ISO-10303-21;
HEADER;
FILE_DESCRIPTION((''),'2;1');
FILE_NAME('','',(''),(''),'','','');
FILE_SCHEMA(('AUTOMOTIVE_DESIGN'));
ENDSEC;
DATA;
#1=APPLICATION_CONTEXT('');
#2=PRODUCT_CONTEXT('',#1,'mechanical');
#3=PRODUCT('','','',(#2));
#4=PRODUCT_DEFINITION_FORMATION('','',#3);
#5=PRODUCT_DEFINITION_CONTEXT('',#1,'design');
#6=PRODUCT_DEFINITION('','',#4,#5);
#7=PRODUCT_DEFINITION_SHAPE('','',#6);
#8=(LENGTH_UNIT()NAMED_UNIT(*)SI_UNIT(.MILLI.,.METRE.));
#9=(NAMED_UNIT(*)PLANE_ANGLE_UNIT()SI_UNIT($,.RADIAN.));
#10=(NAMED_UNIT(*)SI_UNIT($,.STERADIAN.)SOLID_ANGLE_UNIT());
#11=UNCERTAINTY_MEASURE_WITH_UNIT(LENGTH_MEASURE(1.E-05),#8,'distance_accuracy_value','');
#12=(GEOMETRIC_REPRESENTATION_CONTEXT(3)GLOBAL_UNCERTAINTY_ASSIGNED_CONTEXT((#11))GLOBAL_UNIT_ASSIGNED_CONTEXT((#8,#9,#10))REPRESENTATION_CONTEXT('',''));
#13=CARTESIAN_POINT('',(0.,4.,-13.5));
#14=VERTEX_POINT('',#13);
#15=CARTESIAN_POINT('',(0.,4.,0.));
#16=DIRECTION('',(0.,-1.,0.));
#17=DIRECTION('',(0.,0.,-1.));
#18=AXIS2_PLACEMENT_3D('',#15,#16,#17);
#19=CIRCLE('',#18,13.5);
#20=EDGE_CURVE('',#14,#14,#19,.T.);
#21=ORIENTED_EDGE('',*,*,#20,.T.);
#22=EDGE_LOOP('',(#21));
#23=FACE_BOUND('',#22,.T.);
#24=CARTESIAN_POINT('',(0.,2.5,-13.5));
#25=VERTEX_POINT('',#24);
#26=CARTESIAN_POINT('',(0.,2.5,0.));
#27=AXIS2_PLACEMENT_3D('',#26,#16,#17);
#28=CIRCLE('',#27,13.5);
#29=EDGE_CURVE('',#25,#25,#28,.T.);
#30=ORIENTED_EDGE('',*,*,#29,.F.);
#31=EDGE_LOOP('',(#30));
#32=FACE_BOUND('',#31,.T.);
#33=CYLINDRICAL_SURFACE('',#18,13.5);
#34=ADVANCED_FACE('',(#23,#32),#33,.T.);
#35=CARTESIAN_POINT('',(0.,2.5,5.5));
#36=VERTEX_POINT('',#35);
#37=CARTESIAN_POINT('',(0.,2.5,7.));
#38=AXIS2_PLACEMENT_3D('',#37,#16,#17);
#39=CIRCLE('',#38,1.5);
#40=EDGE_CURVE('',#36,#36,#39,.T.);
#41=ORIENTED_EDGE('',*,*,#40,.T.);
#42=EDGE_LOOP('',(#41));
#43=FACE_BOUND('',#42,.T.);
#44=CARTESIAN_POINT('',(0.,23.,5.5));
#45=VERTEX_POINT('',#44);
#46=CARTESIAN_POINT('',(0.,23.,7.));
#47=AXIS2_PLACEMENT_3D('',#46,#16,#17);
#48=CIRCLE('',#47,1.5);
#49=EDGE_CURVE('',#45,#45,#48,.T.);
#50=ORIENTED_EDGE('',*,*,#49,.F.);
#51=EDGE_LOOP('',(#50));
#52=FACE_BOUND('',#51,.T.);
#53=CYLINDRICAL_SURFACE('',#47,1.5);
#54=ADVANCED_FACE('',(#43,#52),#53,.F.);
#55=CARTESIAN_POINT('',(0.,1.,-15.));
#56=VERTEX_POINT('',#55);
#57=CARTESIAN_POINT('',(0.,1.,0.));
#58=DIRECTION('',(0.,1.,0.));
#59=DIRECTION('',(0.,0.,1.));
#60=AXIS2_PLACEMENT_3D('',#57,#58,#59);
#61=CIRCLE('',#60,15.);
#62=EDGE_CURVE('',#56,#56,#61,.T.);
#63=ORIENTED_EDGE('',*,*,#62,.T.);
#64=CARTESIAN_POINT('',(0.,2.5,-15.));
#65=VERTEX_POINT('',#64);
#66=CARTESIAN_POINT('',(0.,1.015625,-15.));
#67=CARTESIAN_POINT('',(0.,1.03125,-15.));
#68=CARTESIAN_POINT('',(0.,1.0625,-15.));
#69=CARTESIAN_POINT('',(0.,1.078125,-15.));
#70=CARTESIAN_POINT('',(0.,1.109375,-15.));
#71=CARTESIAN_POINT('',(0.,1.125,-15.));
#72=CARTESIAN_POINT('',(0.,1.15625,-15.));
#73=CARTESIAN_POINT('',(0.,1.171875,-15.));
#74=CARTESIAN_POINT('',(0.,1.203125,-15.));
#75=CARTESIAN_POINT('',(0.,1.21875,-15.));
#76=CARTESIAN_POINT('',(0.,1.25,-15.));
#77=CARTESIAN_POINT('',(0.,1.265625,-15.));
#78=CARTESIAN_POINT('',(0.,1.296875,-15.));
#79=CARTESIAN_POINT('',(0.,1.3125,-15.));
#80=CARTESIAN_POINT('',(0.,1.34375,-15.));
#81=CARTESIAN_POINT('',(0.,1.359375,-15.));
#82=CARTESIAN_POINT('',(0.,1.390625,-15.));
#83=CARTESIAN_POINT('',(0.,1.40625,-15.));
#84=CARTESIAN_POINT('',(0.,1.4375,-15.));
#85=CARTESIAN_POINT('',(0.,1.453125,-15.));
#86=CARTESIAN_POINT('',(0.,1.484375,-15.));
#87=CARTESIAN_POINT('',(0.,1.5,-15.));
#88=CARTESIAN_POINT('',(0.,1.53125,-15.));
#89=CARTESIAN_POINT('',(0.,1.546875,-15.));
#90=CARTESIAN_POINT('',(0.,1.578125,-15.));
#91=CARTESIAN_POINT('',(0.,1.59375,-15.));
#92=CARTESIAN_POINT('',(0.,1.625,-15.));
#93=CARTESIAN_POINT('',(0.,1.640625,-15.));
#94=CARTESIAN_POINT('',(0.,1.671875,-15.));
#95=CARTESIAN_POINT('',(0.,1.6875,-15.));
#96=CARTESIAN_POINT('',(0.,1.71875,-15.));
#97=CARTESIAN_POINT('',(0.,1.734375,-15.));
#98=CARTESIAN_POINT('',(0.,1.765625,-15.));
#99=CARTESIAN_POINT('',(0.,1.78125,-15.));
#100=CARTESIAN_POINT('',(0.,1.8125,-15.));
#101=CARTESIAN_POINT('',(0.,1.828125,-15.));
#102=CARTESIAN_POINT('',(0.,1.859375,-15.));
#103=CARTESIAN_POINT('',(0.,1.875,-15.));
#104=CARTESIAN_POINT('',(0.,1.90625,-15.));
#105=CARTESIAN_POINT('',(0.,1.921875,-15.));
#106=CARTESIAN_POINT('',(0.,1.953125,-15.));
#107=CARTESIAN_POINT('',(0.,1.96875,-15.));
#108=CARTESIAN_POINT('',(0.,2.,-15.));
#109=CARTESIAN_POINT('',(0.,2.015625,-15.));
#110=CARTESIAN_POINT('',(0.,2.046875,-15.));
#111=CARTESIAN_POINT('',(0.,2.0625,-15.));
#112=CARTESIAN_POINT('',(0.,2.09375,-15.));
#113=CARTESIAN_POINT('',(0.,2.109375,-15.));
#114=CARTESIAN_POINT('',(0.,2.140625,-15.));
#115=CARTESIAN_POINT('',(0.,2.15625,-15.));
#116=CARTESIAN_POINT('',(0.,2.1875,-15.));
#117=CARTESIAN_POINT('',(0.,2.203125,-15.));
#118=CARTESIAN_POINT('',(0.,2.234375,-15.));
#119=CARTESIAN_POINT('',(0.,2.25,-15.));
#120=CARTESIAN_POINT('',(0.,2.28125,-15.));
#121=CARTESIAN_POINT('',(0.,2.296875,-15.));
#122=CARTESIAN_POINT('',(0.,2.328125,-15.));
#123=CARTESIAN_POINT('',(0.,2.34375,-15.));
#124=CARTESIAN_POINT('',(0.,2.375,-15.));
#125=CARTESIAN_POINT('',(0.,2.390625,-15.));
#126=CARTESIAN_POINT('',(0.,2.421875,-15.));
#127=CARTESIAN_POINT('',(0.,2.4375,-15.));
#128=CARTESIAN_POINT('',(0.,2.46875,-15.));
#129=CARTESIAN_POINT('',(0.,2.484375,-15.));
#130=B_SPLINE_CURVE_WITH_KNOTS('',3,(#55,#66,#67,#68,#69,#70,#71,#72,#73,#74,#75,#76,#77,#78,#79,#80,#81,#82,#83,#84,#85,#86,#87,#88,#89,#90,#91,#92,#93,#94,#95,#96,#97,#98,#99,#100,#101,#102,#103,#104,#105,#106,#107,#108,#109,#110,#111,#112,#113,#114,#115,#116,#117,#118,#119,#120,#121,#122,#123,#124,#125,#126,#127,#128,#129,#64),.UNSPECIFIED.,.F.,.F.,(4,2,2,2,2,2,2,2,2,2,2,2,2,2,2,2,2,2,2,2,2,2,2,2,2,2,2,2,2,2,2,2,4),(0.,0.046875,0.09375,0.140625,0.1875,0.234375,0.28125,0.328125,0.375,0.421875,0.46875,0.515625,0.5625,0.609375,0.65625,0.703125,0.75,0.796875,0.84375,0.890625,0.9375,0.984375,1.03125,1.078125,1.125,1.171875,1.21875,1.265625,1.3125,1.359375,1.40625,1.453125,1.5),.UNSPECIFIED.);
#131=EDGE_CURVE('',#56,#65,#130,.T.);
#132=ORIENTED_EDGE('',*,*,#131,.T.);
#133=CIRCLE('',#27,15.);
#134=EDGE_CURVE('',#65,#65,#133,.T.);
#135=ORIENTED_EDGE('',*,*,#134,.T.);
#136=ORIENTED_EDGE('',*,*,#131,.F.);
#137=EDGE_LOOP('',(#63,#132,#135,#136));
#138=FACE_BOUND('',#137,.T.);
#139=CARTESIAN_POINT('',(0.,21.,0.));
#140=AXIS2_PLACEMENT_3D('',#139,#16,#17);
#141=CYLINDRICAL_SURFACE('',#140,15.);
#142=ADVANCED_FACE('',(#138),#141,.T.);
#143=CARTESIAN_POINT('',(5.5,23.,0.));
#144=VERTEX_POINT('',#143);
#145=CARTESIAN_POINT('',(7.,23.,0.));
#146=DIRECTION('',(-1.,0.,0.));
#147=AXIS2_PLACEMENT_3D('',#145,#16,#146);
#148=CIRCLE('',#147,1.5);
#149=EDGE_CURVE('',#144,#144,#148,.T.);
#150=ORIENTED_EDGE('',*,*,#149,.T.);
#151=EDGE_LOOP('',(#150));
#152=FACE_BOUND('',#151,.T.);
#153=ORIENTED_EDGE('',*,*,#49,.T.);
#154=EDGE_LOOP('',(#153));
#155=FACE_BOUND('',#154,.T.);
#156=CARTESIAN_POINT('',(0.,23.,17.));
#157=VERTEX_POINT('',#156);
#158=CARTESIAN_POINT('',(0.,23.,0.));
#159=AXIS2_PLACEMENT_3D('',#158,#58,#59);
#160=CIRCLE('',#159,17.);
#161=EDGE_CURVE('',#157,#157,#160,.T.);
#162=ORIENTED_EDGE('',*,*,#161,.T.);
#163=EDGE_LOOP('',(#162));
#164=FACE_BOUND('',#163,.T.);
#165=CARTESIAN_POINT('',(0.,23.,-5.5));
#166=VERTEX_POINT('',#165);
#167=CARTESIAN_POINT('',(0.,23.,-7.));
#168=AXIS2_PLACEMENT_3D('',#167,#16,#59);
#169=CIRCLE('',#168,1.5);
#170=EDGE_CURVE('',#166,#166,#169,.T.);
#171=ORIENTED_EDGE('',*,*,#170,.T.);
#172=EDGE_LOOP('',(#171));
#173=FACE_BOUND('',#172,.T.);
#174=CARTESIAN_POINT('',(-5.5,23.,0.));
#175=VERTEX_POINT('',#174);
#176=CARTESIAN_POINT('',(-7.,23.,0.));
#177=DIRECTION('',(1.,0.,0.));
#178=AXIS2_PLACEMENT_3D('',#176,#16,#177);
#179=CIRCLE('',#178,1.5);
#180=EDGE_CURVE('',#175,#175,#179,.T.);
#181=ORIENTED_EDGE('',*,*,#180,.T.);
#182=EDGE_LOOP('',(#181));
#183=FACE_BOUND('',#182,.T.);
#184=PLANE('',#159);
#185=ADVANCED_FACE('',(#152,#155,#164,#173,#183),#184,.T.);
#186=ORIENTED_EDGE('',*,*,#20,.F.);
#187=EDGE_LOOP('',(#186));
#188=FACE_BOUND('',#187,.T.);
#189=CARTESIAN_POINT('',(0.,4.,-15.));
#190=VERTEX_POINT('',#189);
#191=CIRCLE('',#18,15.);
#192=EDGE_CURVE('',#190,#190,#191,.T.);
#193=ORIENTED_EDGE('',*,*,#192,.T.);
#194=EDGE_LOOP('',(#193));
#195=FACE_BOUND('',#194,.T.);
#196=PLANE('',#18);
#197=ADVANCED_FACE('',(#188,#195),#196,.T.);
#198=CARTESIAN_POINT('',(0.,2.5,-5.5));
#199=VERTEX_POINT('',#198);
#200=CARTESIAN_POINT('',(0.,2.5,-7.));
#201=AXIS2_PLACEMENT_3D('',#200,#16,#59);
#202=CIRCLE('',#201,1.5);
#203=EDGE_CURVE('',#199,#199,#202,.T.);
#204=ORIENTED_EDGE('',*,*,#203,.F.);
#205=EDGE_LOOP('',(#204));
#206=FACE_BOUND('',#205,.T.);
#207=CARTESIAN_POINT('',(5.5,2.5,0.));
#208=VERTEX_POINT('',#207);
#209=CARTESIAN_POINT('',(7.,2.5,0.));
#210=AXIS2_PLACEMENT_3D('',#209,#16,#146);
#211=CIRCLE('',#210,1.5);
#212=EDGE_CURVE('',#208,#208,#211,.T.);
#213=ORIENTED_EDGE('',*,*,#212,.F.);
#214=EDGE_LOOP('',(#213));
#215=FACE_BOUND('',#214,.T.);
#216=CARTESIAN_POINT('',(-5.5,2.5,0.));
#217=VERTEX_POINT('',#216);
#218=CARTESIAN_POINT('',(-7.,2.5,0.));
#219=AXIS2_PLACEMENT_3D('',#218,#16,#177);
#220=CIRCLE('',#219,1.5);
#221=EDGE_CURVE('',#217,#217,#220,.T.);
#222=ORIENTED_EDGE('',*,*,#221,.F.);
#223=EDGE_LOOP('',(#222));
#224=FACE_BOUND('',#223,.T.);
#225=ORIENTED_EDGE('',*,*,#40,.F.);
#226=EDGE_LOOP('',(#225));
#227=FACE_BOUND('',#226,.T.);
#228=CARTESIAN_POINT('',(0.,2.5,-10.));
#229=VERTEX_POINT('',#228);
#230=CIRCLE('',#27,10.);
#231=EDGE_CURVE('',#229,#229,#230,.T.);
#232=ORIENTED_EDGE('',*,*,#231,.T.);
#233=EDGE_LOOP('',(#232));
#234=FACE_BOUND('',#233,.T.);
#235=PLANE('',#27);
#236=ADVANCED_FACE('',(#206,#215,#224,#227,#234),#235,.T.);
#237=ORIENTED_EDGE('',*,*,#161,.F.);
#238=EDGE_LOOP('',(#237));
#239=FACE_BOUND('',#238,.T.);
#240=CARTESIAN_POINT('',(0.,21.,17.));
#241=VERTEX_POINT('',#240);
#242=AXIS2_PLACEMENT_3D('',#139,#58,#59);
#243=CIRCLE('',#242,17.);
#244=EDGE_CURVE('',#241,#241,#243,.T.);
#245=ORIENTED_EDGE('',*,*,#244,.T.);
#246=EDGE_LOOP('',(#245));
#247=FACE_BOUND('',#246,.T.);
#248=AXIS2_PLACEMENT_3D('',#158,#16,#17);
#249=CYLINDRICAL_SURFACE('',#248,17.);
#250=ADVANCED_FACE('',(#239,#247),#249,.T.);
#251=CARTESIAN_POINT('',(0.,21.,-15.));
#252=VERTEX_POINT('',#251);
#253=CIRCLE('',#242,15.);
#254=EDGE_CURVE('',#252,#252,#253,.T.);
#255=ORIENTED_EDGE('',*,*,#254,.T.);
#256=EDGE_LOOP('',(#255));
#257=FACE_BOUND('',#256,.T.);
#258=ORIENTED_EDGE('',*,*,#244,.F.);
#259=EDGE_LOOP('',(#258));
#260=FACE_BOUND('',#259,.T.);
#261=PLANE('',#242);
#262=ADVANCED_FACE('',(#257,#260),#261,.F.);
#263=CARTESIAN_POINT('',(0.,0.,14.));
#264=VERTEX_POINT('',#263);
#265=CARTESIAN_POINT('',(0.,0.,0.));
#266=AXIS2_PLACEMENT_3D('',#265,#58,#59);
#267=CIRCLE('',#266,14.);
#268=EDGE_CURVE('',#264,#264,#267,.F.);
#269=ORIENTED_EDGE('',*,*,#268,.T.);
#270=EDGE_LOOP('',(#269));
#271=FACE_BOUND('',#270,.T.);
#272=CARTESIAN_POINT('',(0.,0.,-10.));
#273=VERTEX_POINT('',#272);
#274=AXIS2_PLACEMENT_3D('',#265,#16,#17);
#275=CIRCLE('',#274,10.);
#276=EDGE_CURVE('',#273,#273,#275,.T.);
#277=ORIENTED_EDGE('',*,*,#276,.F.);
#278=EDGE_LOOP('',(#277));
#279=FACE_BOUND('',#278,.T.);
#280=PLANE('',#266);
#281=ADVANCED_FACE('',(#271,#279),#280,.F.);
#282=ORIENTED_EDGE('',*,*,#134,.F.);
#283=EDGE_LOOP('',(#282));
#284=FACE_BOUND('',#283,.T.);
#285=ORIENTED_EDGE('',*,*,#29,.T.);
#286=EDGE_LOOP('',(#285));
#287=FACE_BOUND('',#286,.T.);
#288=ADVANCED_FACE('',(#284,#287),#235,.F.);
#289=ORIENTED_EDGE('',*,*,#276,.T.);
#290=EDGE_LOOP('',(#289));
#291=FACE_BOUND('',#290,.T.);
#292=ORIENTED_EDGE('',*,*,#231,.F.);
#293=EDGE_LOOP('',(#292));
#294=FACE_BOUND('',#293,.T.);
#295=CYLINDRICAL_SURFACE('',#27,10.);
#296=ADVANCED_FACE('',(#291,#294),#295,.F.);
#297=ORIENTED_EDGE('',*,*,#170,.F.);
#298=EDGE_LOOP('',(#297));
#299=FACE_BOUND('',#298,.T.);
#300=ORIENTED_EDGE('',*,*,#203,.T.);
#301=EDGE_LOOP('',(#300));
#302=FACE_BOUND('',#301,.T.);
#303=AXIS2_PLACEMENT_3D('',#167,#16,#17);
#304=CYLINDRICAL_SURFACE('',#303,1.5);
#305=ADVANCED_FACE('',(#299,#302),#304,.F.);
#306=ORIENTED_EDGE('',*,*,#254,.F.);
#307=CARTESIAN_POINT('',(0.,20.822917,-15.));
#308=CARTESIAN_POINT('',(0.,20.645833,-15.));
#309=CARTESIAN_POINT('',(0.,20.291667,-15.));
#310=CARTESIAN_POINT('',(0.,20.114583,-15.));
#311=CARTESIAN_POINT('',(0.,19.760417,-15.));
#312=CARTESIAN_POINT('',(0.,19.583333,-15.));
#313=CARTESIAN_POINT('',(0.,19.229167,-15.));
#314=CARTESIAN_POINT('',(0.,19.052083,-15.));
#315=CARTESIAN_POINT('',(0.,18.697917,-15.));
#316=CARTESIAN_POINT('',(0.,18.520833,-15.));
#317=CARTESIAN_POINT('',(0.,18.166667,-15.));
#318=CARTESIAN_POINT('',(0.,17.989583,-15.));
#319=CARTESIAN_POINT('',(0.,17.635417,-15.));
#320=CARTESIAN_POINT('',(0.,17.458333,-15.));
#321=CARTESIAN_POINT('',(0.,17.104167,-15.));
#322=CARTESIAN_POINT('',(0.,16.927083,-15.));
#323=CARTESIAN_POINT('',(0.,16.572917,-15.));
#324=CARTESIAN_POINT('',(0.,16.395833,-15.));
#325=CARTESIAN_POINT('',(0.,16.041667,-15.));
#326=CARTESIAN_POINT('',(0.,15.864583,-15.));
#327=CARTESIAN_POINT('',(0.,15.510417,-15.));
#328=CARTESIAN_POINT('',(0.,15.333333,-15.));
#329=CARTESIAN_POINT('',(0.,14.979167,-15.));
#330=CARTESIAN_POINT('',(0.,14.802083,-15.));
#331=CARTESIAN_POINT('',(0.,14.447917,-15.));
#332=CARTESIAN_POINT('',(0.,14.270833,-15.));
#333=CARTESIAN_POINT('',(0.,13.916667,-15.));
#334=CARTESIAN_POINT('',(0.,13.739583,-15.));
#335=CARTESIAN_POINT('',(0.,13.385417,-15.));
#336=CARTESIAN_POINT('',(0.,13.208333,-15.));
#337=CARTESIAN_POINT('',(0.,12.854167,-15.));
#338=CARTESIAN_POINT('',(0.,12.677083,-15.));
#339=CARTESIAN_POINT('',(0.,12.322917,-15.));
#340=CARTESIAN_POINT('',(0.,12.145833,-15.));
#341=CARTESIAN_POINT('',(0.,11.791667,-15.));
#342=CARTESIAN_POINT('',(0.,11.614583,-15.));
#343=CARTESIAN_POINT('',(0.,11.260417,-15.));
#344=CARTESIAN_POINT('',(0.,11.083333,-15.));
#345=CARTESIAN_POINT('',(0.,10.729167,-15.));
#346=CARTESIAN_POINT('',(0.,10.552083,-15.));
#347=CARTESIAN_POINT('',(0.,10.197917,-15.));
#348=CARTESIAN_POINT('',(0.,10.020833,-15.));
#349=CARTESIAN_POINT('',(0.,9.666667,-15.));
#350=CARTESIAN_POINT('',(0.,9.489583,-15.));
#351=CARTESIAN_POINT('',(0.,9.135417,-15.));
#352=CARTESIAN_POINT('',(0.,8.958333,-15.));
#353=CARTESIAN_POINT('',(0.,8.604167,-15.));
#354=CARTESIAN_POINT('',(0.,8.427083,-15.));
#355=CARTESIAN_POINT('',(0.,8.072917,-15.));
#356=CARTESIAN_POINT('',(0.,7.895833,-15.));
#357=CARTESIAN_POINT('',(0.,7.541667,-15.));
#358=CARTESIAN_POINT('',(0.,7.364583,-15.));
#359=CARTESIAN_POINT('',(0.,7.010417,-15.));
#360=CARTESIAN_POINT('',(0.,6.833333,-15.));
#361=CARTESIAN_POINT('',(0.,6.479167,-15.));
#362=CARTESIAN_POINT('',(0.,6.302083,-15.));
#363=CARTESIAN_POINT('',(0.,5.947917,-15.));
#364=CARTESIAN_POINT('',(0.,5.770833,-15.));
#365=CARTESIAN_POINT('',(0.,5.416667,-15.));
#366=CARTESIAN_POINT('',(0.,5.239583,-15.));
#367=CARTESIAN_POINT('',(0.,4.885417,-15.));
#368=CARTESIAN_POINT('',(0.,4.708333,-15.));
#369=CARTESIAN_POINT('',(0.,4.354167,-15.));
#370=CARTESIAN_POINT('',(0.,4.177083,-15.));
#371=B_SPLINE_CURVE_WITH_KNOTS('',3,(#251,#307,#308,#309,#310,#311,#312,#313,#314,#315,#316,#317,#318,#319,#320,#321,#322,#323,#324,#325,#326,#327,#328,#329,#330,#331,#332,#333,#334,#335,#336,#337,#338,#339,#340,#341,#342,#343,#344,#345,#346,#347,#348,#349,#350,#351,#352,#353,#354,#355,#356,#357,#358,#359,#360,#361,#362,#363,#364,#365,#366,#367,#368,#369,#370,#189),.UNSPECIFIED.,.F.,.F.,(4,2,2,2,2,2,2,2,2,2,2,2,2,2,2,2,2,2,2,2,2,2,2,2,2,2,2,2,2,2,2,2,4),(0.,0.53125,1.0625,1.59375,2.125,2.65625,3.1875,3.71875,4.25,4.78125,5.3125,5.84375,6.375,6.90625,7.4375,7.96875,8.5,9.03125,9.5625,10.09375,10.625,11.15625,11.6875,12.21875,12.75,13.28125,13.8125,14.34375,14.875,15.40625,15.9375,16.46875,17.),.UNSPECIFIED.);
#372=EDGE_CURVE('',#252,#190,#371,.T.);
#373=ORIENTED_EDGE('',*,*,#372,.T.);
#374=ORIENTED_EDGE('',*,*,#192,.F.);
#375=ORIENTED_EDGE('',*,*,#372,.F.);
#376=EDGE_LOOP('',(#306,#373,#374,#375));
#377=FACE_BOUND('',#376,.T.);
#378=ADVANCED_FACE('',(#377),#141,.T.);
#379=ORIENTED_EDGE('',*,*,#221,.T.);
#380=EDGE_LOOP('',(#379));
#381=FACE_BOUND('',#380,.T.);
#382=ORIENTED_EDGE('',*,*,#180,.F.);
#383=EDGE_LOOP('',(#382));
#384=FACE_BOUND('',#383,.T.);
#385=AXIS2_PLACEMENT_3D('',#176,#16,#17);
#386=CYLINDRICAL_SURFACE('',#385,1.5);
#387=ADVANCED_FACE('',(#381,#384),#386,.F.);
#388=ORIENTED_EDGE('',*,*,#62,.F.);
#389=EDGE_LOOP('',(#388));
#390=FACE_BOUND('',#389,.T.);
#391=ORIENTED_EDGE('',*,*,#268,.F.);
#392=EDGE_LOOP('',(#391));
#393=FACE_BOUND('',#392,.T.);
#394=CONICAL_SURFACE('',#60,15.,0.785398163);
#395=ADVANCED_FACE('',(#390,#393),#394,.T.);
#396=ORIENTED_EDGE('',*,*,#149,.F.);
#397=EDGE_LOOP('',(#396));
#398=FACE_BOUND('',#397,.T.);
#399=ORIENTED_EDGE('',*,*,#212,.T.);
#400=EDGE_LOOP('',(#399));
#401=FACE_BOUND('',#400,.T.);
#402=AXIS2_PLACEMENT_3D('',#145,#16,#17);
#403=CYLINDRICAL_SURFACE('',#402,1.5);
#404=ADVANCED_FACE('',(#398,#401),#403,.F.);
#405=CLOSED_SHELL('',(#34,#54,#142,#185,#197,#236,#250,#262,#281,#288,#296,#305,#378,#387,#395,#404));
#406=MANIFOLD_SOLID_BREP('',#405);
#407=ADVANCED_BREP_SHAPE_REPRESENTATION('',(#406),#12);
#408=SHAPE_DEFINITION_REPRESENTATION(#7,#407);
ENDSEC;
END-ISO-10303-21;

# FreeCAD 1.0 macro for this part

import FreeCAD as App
import Part
import Sketcher
from FreeCAD import Vector
Q = App.Units.Quantity


def edges_at(feature, points):
    """Names of the edges that pass closest to the given points."""
    edges = feature.Shape.Edges
    near = lambda p: min(range(len(edges)), key=lambda i: edges[i].distToShape(Part.Vertex(*p))[0])
    return sorted({f"Edge{near(p) + 1}" for p in points})

doc = App.newDocument("Part")
body = doc.addObject("PartDesign::Body", "Body")

sketch1 = body.newObject("Sketcher::SketchObject", "Sketch")
sketch1.AttachmentSupport = (doc.getObject("XZ_Plane"), [""])
sketch1.MapMode = "FlatFace"
sketch1.addGeometry(Part.Circle(Vector(0, 0, 0), Vector(0, 0, 1), 15), False)
sketch1.addConstraint([
    Sketcher.Constraint("Coincident", 0, 3, -1, 1),
    Sketcher.Constraint("Diameter", 0, Q("30 mm")),
])
pad1 = body.newObject("PartDesign::Pad", "Pad")
pad1.Profile = sketch1
pad1.Length = 21
pad1.Reversed = True

sketch2 = body.newObject("Sketcher::SketchObject", "Sketch001")
sketch2.AttachmentSupport = (doc.getObject("XZ_Plane"), [""])
sketch2.MapMode = "FlatFace"
sketch2.addGeometry(Part.Circle(Vector(0, 0, 0), Vector(0, 0, 1), 10), False)
sketch2.addConstraint([
    Sketcher.Constraint("Coincident", 0, 3, -1, 1),
    Sketcher.Constraint("Diameter", 0, Q("20 mm")),
])
pocket1 = body.newObject("PartDesign::Pocket", "Pocket")
pocket1.Profile = sketch2
pocket1.Length = 2.5

sketch3 = body.newObject("Sketcher::SketchObject", "Sketch002")
sketch3.AttachmentSupport = (doc.getObject("XZ_Plane"), [""])
sketch3.MapMode = "FlatFace"
sketch3.AttachmentOffset = App.Placement(Vector(0, 0, -2.5), App.Rotation())
sketch3.addGeometry([
    Part.Circle(Vector(0, 0, 0), Vector(0, 0, 1), 15),
    Part.Circle(Vector(0, 0, 0), Vector(0, 0, 1), 14),
], False)
sketch3.addConstraint([
    Sketcher.Constraint("Coincident", 0, 3, -1, 1),
    Sketcher.Constraint("Coincident", 1, 3, -1, 1),
    Sketcher.Constraint("Diameter", 0, Q("30 mm")),
    Sketcher.Constraint("Diameter", 1, Q("27 mm")),
])
pocket2 = body.newObject("PartDesign::Pocket", "Pocket001")
pocket2.Profile = sketch3
pocket2.Length = 1.5
doc.recompute()

chamfer = body.newObject("PartDesign::Chamfer", "Chamfer")
chamfer.Base = (pocket2, edges_at(pocket2, [(0, 0, 15)]))
chamfer.Size = 1

sketch4 = body.newObject("Sketcher::SketchObject", "Sketch003")
sketch4.AttachmentSupport = (doc.getObject("XZ_Plane"), [""])
sketch4.MapMode = "FlatFace"
sketch4.AttachmentOffset = App.Placement(Vector(0, 0, -21), App.Rotation())
sketch4.addGeometry(Part.Circle(Vector(0, 0, 0), Vector(0, 0, 1), 17), False)
sketch4.addConstraint([
    Sketcher.Constraint("Coincident", 0, 3, -1, 1),
    Sketcher.Constraint("Diameter", 0, Q("34 mm")),
])
pad2 = body.newObject("PartDesign::Pad", "Pad001")
pad2.Profile = sketch4
pad2.Length = 2
pad2.Reversed = True

sketch5 = body.newObject("Sketcher::SketchObject", "Sketch004")
sketch5.AttachmentSupport = (doc.getObject("XZ_Plane"), [""])
sketch5.MapMode = "FlatFace"
sketch5.AttachmentOffset = App.Placement(Vector(0, 0, -2.5), App.Rotation())
sketch5.addGeometry(Part.Circle(Vector(0, 7, 0), Vector(0, 0, 1), 1.5), False)
sketch5.addConstraint([
    Sketcher.Constraint("PointOnObject", 0, 3, -2),
    Sketcher.Constraint("Diameter", 0, Q("3 mm")),
    Sketcher.Constraint("DistanceY", -1, 1, 0, 3, Q("7 mm")),
])
pocket3 = body.newObject("PartDesign::Pocket", "Pocket002")
pocket3.Profile = sketch5
pocket3.Type = "ThroughAll"
doc.recompute()

polarpattern = body.newObject("PartDesign::PolarPattern", "PolarPattern")
polarpattern.Originals = [pocket3]
polarpattern.Axis = (doc.getObject("Y_Axis"), [""])
polarpattern.Angle = 360
polarpattern.Occurrences = 4
body.Tip = polarpattern

doc.recompute()
